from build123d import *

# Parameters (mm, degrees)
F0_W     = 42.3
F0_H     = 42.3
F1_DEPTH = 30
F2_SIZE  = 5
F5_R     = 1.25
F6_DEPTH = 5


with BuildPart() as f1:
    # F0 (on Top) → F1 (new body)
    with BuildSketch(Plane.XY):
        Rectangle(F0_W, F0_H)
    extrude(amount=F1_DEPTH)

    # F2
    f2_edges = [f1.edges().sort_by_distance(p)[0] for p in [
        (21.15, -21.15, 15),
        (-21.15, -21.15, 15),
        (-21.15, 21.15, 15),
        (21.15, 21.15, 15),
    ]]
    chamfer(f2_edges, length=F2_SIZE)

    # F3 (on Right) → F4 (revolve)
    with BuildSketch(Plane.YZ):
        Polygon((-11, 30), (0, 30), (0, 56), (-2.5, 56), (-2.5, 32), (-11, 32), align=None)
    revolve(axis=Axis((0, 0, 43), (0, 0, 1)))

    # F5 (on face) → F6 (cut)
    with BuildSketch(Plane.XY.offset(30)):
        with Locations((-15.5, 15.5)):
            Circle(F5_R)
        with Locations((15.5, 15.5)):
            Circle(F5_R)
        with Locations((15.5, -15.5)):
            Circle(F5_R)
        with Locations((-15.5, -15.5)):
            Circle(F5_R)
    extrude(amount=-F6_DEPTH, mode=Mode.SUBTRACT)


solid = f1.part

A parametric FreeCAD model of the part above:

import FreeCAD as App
import Part
import Sketcher
from FreeCAD import Vector


def edges_at(feature, points):
    """Names of the edges that pass closest to the given points."""
    edges = feature.Shape.Edges
    near = lambda p: min(range(len(edges)), key=lambda i: edges[i].distToShape(Part.Vertex(*p))[0])
    return sorted({f"Edge{near(p) + 1}" for p in points})


def add_polygon(sketch, points):
    """Adds a closed chain of lines whose ends are joined by coincident constraints."""
    first, n = sketch.GeometryCount, len(points)
    for a, b in zip(points, points[1:] + points[:1]):
        sketch.addGeometry(Part.LineSegment(App.Vector(*a, 0), App.Vector(*b, 0)), False)
    for i in range(n):
        sketch.addConstraint(Sketcher.Constraint("Coincident", first + i, 2, first + (i + 1) % n, 1))

doc = App.newDocument("Part")
body = doc.addObject("PartDesign::Body", "Body")

# Sketch on XY plane
sketch1 = body.newObject("Sketcher::SketchObject", "Sketch")
sketch1.AttachmentSupport = (doc.getObject("XY_Plane"), [""])
sketch1.MapMode = "FlatFace"
add_polygon(sketch1, [(-21, 21), (-21, -21), (21, -21), (21, 21)])  # lines 0-3
sketch1.addConstraint([
    Sketcher.Constraint("Vertical", 0),
    Sketcher.Constraint("Horizontal", 1),
    Sketcher.Constraint("Vertical", 2),
    Sketcher.Constraint("Horizontal", 3),
    Sketcher.Constraint("Symmetric", 0, 2, 2, 2, -1, 1),
    Sketcher.Constraint("Equal", 3, 0),
    Sketcher.Constraint("DistanceX", 1, 1, 1, 2, 42.3),
])
pad1 = body.newObject("PartDesign::Pad", "Pad")
pad1.Profile = sketch1
pad1.Length = 30
doc.recompute()

chamfer = body.newObject("PartDesign::Chamfer", "Chamfer")
chamfer.Base = (pad1, edges_at(pad1, [
    (21.15, -21.15, 15),
    (-21.15, -21.15, 15),
    (-21.15, 21.15, 15),
    (21.15, 21.15, 15),
]))
chamfer.Size = 5

# Sketch on YZ plane
sketch2 = body.newObject("Sketcher::SketchObject", "Sketch001")
sketch2.AttachmentSupport = (doc.getObject("YZ_Plane"), [""])
sketch2.MapMode = "FlatFace"
add_polygon(sketch2, [(-11, 30), (0, 30), (0, 56), (-2.5, 56), (-2.5, 32), (-11, 32)])  # lines 0-5
sketch2.addConstraint([
    Sketcher.Constraint("Horizontal", 0),
    Sketcher.Constraint("Vertical", 1),
    Sketcher.Constraint("Horizontal", 2),
    Sketcher.Constraint("Vertical", 3),
    Sketcher.Constraint("Horizontal", 4),
    Sketcher.Constraint("Vertical", 5),
    Sketcher.Constraint("PointOnObject", 0, 2, -2),
    Sketcher.Constraint("DistanceX", 0, 1, 0, 2, 11.0),
    Sketcher.Constraint("DistanceY", 1, 1, 1, 2, 26.0),
    Sketcher.Constraint("DistanceY", 3, 2, 3, 1, 24.0),
    Sketcher.Constraint("DistanceX", 2, 2, 2, 1, 2.5),
    Sketcher.Constraint("DistanceY", -1, 1, 0, 2, 30.0),
])
revolution = body.newObject("PartDesign::Revolution", "Revolution")
revolution.Profile = sketch2
revolution.ReferenceAxis = (sketch2, ["V_Axis"])
revolution.Angle = 360

# Sketch on XY plane
sketch3 = body.newObject("Sketcher::SketchObject", "Sketch002")
sketch3.AttachmentSupport = (doc.getObject("XY_Plane"), [""])
sketch3.MapMode = "FlatFace"
sketch3.AttachmentOffset = App.Placement(Vector(0, 0, 30), App.Rotation())
sketch3.addGeometry([
    Part.Circle(Vector(-15.5, 15.5, 0), Vector(0, 0, 1), 1.2),
    Part.Circle(Vector(15.5, 15.5, 0), Vector(0, 0, 1), 1.2),
    Part.Circle(Vector(15.5, -15.5, 0), Vector(0, 0, 1), 1.2),
    Part.Circle(Vector(-15.5, -15.5, 0), Vector(0, 0, 1), 1.2),
], False)
sketch3.addConstraint([
    Sketcher.Constraint("Equal", 0, 1),
    Sketcher.Constraint("Equal", 1, 2),
    Sketcher.Constraint("Equal", 2, 3),
    Sketcher.Constraint("Symmetric", 0, 3, 2, 3, -1, 1),
    Sketcher.Constraint("Symmetric", 1, 3, 3, 3, -1, 1),
    Sketcher.Constraint("Symmetric", 0, 3, 1, 3, -2),
    Sketcher.Constraint("Diameter", 0, 2.5),
    Sketcher.Constraint("DistanceX", 0, 3, 1, 3, 31.0),
    Sketcher.Constraint("DistanceY", 2, 3, 1, 3, 31.0),
])
pocket1 = body.newObject("PartDesign::Pocket", "Pocket")
pocket1.Profile = sketch3
pocket1.Length = 5

doc.recompute()
